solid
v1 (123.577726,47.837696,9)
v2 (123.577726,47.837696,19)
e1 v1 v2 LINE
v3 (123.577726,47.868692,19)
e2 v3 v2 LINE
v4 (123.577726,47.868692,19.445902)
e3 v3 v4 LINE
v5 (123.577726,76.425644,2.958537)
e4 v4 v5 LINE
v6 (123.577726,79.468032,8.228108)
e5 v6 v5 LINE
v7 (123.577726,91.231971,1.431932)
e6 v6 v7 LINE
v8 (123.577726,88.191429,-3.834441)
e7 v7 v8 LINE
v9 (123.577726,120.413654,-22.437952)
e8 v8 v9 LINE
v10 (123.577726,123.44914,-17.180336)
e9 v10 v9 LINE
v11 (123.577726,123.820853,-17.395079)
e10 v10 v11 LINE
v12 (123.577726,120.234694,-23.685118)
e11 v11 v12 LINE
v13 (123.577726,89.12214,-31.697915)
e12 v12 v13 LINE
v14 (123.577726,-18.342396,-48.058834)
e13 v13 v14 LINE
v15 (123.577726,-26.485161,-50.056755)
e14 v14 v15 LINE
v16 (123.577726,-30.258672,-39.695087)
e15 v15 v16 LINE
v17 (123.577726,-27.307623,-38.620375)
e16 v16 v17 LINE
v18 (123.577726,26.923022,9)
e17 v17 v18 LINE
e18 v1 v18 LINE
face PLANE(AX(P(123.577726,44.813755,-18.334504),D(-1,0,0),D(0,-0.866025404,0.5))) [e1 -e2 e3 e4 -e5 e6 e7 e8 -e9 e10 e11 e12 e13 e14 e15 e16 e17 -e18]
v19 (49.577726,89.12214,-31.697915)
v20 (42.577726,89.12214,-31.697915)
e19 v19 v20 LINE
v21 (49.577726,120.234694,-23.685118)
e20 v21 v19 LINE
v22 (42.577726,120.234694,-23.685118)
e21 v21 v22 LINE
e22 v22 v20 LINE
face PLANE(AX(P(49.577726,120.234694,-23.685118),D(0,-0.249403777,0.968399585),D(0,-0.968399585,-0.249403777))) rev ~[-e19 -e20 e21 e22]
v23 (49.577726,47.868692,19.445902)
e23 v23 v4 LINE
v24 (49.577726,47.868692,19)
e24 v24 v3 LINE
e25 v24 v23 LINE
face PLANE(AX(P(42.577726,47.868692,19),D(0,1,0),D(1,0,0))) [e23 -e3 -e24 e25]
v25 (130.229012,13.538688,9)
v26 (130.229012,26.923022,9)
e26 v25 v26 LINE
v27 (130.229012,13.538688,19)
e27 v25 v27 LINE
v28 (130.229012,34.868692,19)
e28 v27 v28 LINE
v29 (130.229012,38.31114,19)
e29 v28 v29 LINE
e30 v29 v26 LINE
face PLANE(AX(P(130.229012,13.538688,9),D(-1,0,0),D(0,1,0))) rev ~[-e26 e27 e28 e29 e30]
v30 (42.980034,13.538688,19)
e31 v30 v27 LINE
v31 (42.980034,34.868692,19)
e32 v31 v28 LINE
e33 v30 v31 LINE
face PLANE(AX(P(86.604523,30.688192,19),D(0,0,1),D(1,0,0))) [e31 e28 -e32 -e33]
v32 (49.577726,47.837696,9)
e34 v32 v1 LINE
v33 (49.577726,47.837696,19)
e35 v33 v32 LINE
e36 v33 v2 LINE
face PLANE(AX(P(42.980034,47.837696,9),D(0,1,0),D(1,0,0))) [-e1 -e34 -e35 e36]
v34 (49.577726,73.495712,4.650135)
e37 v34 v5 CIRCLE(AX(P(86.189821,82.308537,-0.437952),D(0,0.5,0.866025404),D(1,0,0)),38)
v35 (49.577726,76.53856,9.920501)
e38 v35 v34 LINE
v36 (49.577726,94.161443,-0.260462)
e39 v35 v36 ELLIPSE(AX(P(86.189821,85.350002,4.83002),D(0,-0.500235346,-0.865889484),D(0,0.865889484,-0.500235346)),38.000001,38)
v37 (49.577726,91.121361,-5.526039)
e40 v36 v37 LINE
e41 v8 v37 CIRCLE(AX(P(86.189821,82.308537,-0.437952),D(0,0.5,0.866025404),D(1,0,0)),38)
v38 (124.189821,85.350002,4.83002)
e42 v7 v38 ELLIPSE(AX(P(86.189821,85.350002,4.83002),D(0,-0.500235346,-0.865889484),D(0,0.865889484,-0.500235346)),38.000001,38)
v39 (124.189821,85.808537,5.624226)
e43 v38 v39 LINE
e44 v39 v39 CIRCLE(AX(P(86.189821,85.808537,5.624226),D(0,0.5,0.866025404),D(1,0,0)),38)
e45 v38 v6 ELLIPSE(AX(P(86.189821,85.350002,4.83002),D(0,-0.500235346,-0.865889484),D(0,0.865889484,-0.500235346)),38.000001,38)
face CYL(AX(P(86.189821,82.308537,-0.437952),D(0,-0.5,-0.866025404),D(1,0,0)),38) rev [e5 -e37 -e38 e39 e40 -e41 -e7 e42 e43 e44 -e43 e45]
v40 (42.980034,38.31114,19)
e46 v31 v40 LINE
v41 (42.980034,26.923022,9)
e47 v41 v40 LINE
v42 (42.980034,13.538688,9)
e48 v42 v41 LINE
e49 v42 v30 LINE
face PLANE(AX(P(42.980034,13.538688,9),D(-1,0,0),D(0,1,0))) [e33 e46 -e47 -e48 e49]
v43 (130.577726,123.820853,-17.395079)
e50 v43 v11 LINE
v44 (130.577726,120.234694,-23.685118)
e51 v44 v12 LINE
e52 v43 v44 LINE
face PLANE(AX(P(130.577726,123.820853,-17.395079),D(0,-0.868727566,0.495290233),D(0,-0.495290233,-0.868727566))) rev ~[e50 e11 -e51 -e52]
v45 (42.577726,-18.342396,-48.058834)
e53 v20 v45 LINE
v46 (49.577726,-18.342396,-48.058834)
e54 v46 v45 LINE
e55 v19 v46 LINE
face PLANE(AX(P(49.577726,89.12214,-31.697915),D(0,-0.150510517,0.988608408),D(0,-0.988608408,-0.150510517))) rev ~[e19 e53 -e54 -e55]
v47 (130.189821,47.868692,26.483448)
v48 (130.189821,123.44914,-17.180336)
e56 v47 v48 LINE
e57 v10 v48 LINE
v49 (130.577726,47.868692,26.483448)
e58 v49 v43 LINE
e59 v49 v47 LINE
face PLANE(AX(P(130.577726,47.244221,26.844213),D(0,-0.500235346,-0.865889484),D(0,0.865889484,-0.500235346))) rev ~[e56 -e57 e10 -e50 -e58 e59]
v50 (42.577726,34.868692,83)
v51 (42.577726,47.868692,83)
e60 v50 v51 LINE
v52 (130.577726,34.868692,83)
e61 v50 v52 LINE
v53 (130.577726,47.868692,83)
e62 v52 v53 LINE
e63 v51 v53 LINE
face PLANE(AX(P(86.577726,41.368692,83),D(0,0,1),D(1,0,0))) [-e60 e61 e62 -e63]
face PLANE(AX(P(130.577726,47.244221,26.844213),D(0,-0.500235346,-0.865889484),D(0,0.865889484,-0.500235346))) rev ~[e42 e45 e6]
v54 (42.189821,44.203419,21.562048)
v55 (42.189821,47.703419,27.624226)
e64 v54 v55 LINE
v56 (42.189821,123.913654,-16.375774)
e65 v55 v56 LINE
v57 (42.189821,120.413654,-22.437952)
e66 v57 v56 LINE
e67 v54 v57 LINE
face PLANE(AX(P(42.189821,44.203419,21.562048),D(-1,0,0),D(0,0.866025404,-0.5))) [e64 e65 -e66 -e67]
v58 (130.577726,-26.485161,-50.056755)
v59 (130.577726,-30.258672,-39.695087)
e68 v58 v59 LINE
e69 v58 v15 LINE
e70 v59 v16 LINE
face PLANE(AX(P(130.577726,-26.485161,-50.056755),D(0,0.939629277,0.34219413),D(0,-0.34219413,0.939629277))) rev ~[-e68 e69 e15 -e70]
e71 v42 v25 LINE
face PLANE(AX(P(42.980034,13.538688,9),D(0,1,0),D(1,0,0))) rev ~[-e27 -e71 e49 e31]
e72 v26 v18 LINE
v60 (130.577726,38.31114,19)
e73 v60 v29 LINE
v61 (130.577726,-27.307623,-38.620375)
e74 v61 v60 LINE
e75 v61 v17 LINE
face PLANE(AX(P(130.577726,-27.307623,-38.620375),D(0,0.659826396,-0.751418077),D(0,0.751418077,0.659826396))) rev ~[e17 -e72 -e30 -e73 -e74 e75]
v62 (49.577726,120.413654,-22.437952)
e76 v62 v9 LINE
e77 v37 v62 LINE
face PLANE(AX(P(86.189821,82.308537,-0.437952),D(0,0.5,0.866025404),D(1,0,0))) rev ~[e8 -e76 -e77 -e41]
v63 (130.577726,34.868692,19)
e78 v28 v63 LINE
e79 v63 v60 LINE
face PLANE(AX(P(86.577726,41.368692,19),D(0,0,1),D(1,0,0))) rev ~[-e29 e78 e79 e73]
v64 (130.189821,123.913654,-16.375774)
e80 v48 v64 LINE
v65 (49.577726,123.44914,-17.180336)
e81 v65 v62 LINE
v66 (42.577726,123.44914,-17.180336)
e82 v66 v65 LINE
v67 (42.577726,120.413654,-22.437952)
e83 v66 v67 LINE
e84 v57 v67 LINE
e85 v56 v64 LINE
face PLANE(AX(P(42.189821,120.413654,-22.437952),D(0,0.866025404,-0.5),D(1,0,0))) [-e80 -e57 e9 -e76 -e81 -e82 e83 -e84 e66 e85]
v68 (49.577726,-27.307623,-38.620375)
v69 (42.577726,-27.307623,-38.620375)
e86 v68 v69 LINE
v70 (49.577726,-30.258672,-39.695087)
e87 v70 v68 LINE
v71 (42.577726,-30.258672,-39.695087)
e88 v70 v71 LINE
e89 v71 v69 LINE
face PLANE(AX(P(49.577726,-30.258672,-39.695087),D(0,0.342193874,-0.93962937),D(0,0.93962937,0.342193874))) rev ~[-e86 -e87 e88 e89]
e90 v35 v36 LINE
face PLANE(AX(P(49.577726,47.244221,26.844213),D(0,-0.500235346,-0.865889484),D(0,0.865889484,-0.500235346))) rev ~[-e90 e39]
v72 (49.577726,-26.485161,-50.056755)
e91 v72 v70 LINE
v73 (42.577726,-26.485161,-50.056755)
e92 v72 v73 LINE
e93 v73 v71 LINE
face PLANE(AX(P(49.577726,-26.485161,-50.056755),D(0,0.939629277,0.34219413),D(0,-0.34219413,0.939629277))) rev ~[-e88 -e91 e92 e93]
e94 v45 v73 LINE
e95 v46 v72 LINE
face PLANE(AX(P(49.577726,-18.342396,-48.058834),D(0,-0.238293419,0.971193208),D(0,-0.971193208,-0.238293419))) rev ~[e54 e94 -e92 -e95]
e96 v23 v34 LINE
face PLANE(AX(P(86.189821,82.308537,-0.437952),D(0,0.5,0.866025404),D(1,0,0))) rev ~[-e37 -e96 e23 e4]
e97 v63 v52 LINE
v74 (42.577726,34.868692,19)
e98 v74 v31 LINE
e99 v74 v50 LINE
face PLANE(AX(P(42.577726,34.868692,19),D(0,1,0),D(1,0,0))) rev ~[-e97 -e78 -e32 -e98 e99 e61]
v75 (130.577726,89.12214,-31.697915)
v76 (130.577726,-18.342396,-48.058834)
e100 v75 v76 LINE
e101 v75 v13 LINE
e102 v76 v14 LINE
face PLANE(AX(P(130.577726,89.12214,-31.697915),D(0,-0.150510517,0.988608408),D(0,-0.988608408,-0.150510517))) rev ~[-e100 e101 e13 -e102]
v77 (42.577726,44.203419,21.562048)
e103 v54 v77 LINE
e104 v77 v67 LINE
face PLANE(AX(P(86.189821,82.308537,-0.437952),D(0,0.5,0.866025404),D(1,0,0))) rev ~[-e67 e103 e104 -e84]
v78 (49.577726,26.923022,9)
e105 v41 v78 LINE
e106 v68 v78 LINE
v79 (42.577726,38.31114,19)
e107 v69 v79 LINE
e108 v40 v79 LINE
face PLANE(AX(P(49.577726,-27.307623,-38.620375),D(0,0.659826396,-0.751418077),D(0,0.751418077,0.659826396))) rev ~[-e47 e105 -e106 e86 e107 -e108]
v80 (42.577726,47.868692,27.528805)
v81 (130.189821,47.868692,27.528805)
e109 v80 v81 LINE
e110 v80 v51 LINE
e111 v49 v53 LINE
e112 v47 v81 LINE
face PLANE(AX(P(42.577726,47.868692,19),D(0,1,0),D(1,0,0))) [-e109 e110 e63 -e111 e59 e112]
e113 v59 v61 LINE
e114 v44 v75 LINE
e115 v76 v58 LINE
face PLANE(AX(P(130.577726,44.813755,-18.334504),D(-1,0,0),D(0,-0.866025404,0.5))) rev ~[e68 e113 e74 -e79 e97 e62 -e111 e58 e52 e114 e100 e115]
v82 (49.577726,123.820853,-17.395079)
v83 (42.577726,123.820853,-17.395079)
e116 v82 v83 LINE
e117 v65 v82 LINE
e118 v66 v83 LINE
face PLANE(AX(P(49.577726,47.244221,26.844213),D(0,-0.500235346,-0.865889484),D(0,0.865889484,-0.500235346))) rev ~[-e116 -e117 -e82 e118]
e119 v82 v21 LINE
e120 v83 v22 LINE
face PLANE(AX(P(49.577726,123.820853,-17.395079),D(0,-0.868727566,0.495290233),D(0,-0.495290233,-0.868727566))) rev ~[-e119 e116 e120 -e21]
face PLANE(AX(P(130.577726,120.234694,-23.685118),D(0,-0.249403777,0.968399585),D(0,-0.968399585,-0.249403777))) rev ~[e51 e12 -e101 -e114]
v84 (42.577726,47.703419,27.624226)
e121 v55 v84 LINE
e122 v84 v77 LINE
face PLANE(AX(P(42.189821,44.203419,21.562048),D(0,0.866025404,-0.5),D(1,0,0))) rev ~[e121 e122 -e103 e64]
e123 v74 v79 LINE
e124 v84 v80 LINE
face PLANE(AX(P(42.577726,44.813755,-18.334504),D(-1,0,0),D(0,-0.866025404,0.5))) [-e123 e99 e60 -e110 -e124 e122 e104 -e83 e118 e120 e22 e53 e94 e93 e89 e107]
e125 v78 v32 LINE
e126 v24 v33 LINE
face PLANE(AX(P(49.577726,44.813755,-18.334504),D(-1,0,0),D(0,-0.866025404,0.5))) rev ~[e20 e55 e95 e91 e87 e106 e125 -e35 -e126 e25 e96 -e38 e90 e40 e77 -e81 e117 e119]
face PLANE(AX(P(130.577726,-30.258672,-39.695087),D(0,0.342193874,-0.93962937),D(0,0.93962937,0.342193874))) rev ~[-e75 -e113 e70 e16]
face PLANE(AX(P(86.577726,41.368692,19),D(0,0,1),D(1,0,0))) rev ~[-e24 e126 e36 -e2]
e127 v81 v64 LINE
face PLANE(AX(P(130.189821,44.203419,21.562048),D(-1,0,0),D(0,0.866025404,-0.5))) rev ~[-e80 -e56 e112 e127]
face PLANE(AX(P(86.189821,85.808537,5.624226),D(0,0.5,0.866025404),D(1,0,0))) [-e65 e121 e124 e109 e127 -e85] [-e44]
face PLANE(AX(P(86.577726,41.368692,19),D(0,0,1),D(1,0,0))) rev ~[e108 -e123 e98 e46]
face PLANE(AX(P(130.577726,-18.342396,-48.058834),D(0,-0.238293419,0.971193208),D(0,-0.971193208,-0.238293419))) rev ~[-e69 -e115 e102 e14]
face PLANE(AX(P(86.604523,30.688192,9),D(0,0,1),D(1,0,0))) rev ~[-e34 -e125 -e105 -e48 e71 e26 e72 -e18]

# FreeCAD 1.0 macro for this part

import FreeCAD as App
import Part
import Sketcher

doc = App.newDocument("Part")
body = doc.addObject("PartDesign::Body", "Body")

# Sketch on XY plane
sketch1 = body.newObject("Sketcher::SketchObject", "Sketch")
sketch1.AttachmentSupport = (doc.getObject("XY_Plane"), [""])
sketch1.MapMode = "FlatFace"
sketch1.addGeometry([
    Part.LineSegment(App.Vector(-123.3, 6.1, 0), App.Vector(-123.3, -1.2, 0)),  # 0
    Part.LineSegment(App.Vector(-123.3, -1.2, 0), App.Vector(-100.4, -23.7, 0)),  # 1
    Part.LineSegment(App.Vector(-100.4, -23.7, 0), App.Vector(-15.5, -91.6, 0)),  # 2
    Part.LineSegment(App.Vector(-15.5, -91.6, 0), App.Vector(-9.5, -97.4, 0)),  # 3
    Part.LineSegment(App.Vector(-9.5, -97.4, 0), App.Vector(-1, -90.3, 0)),  # 4
    Part.LineSegment(App.Vector(-1, -90.3, 0), App.Vector(-3, -87.9, 0)),  # 5
    Part.LineSegment(App.Vector(-3, -87.9, 0), App.Vector(-34.9, 6.1, 0)),  # 6
    Part.LineSegment(App.Vector(-34.9, 6.1, 0), App.Vector(-123.3, 6.1, 0)),  # 7
], False)
sketch1.addConstraint([
    Sketcher.Constraint("Coincident", 0, 2, 1, 1),
    Sketcher.Constraint("Coincident", 1, 2, 2, 1),
    Sketcher.Constraint("Coincident", 2, 2, 3, 1),
    Sketcher.Constraint("Coincident", 3, 2, 4, 1),
    Sketcher.Constraint("Coincident", 4, 2, 5, 1),
    Sketcher.Constraint("Coincident", 5, 2, 6, 1),
    Sketcher.Constraint("Coincident", 6, 2, 7, 1),
    Sketcher.Constraint("Coincident", 7, 2, 0, 1),
    Sketcher.Constraint("Perpendicular", 4, 5),
    Sketcher.Constraint("Distance", 4, 11.0274),
    Sketcher.Constraint("DistanceX", 3, 2, -1, 1, 9.4672),
    Sketcher.Constraint("DistanceX", 1, 2, 5, 2, 97.369902),
    Sketcher.Constraint("Distance", 0, 7.24052),
    Sketcher.Constraint("Distance", 3, 8.38429),
    Sketcher.Constraint("DistanceY", 0, 2, -1, 1, 1.169558),
    Sketcher.Constraint("DistanceX", 1, 2, -1, 1, 100.406639),
    Sketcher.Constraint("DistanceY", 1, 2, -1, 1, 23.66512),
    Sketcher.Constraint("DistanceX", 2, 2, -1, 1, 15.520081),
    Sketcher.Constraint("DistanceY", 2, 2, -1, 1, 91.56636),
    Sketcher.Constraint("DistanceX", 4, 2, -1, 1, 1.018409),
    Sketcher.Constraint("DistanceY", -1, 1, 6, 2, 6.09489),
    Sketcher.Constraint("DistanceX", 7, 2, -1, 1, 123.305188),
    Sketcher.Constraint("DistanceX", 0, 2, 2, 2, 107.824422),
    Sketcher.Constraint("DistanceX", 0, 2, 6, 2, 88.476269),
])
pad1 = body.newObject("PartDesign::Pad", "Pad")
pad1.Profile = sketch1
pad1.Length = 7
body2 = doc.addObject("PartDesign::Body", "Body001")
doc.recompute()

body.Placement = App.Placement(App.Vector(0, 0, 0), App.Rotation(App.Vector(1, 0, 0), 90))
boolean = body2.newObject("PartDesign::Boolean", "Boolean")
boolean.Type = "Fuse"
boolean.addObjects([body])
body3 = doc.addObject("PartDesign::Body", "Body002")
doc.recompute()

body2.Placement = App.Placement(App.Vector(0, 0, 0), App.Rotation(App.Vector(0, 1, 0), 330))
boolean2 = body3.newObject("PartDesign::Boolean", "Boolean001")
boolean2.Type = "Fuse"
boolean2.addObjects([body2])
body4 = doc.addObject("PartDesign::Body", "Body003")
doc.recompute()

body3.Placement = App.Placement(App.Vector(42.577726, 14, 39), App.Rotation(App.Vector(0, 0, 1), 270))
boolean3 = body4.newObject("PartDesign::Boolean", "Boolean002")
boolean3.Type = "Fuse"
boolean3.addObjects([body3])
body5 = doc.addObject("PartDesign::Body", "Body004")
doc.recompute()

body4.Placement = App.Placement(App.Vector(7, 0, 0), App.Rotation(App.Vector(0, 0, 1), 0))
boolean4 = body5.newObject("PartDesign::Boolean", "Boolean003")
boolean4.Type = "Fuse"
boolean4.addObjects([body4])
body6 = doc.addObject("PartDesign::Body", "Body005")

# Sketch on XY plane
sketch2 = body6.newObject("Sketcher::SketchObject", "Sketch001")
sketch2.AttachmentSupport = (doc.getObject("XY_Plane005"), [""])
sketch2.MapMode = "FlatFace"
sketch2.addGeometry([
    Part.LineSegment(App.Vector(40, 48, 0), App.Vector(40, 14, 0)),
    Part.LineSegment(App.Vector(40, 14, 0), App.Vector(127, 14, 0)),
    Part.LineSegment(App.Vector(127, 14, 0), App.Vector(127, 48, 0)),
    Part.LineSegment(App.Vector(127, 48, 0), App.Vector(40, 48, 0)),
], False)
sketch2.addConstraint([
    Sketcher.Constraint("Coincident", 0, 2, 1, 1),
    Sketcher.Constraint("Coincident", 1, 2, 2, 1),
    Sketcher.Constraint("Coincident", 2, 2, 3, 1),
    Sketcher.Constraint("Coincident", 3, 2, 0, 1),
    Sketcher.Constraint("Vertical", 0),
    Sketcher.Constraint("Horizontal", 1),
    Sketcher.Constraint("Vertical", 2),
    Sketcher.Constraint("Horizontal", 3),
    Sketcher.Constraint("DistanceX", 1, 1, 1, 2, 87.248978),
    Sketcher.Constraint("DistanceY", 0, 2, 0, 1, 34.299007),
    Sketcher.Constraint("DistanceY", -1, 1, 0, 2, 13.538688),
    Sketcher.Constraint("DistanceX", -1, 1, 1, 2, 127.229012),
])
pad2 = body6.newObject("PartDesign::Pad", "Pad001")
pad2.Profile = sketch2
pad2.Length = 10
body7 = doc.addObject("PartDesign::Body", "Body006")
doc.recompute()

body6.Placement = App.Placement(App.Vector(3, 0, 9), App.Rotation(App.Vector(0, 0, 1), 0))
boolean5 = body7.newObject("PartDesign::Boolean", "Boolean004")
boolean5.Type = "Fuse"
boolean5.addObjects([body6])
body8 = doc.addObject("PartDesign::Body", "Body007")

# Sketch on XY plane
sketch3 = body8.newObject("Sketcher::SketchObject", "Sketch002")
sketch3.AttachmentSupport = (doc.getObject("XY_Plane007"), [""])
sketch3.MapMode = "FlatFace"
sketch3.addGeometry([
    Part.LineSegment(App.Vector(-123.3, 6.1, 0), App.Vector(-123.3, -1.2, 0)),  # 0
    Part.LineSegment(App.Vector(-123.3, -1.2, 0), App.Vector(-100.4, -23.7, 0)),  # 1
    Part.LineSegment(App.Vector(-100.4, -23.7, 0), App.Vector(-15.5, -91.6, 0)),  # 2
    Part.LineSegment(App.Vector(-15.5, -91.6, 0), App.Vector(-9.5, -97.4, 0)),  # 3
    Part.LineSegment(App.Vector(-9.5, -97.4, 0), App.Vector(-1, -90.3, 0)),  # 4
    Part.LineSegment(App.Vector(-1, -90.3, 0), App.Vector(-3, -87.9, 0)),  # 5
    Part.LineSegment(App.Vector(-3, -87.9, 0), App.Vector(-34.9, 6.1, 0)),  # 6
    Part.LineSegment(App.Vector(-34.9, 6.1, 0), App.Vector(-123.3, 6.1, 0)),  # 7
], False)
sketch3.addConstraint([
    Sketcher.Constraint("Coincident", 0, 2, 1, 1),
    Sketcher.Constraint("Coincident", 1, 2, 2, 1),
    Sketcher.Constraint("Coincident", 2, 2, 3, 1),
    Sketcher.Constraint("Coincident", 3, 2, 4, 1),
    Sketcher.Constraint("Coincident", 4, 2, 5, 1),
    Sketcher.Constraint("Coincident", 5, 2, 6, 1),
    Sketcher.Constraint("Coincident", 6, 2, 7, 1),
    Sketcher.Constraint("Coincident", 7, 2, 0, 1),
    Sketcher.Constraint("Perpendicular", 4, 5),
    Sketcher.Constraint("Distance", 4, 11.0274),
    Sketcher.Constraint("DistanceX", 3, 2, -1, 1, 9.4672),
    Sketcher.Constraint("DistanceX", 1, 2, 5, 2, 97.369902),
    Sketcher.Constraint("Distance", 0, 7.24052),
    Sketcher.Constraint("Distance", 3, 8.38429),
    Sketcher.Constraint("DistanceY", 0, 2, -1, 1, 1.169558),
    Sketcher.Constraint("DistanceX", 1, 2, -1, 1, 100.406639),
    Sketcher.Constraint("DistanceY", 1, 2, -1, 1, 23.66512),
    Sketcher.Constraint("DistanceX", 2, 2, -1, 1, 15.520081),
    Sketcher.Constraint("DistanceY", 2, 2, -1, 1, 91.56636),
    Sketcher.Constraint("DistanceX", 4, 2, -1, 1, 1.018409),
    Sketcher.Constraint("DistanceY", -1, 1, 6, 2, 6.09489),
    Sketcher.Constraint("DistanceX", 7, 2, -1, 1, 123.305188),
    Sketcher.Constraint("DistanceX", 0, 2, 2, 2, 107.824422),
    Sketcher.Constraint("DistanceX", 0, 2, 6, 2, 88.476269),
])
pad3 = body8.newObject("PartDesign::Pad", "Pad002")
pad3.Profile = sketch3
pad3.Length = 7
body9 = doc.addObject("PartDesign::Body", "Body008")
doc.recompute()

body8.Placement = App.Placement(App.Vector(0, 0, 0), App.Rotation(App.Vector(1, 0, 0), 90))
boolean6 = body9.newObject("PartDesign::Boolean", "Boolean005")
boolean6.Type = "Fuse"
boolean6.addObjects([body8])
body10 = doc.addObject("PartDesign::Body", "Body009")
doc.recompute()

body9.Placement = App.Placement(App.Vector(0, 0, 0), App.Rotation(App.Vector(0, 1, 0), 330))
boolean7 = body10.newObject("PartDesign::Boolean", "Boolean006")
boolean7.Type = "Fuse"
boolean7.addObjects([body9])
body11 = doc.addObject("PartDesign::Body", "Body010")
doc.recompute()

body10.Placement = App.Placement(App.Vector(42.577726, 14, 39), App.Rotation(App.Vector(0, 0, 1), 270))
boolean8 = body11.newObject("PartDesign::Boolean", "Boolean007")
boolean8.Type = "Fuse"
boolean8.addObjects([body10])
body12 = doc.addObject("PartDesign::Body", "Body011")
doc.recompute()

body11.Placement = App.Placement(App.Vector(88, 0, 0), App.Rotation(App.Vector(0, 0, 1), 0))
boolean9 = body12.newObject("PartDesign::Boolean", "Boolean008")
boolean9.Type = "Fuse"
boolean9.addObjects([body11])
body13 = doc.addObject("PartDesign::Body", "Body012")

# Sketch on XY plane
sketch4 = body13.newObject("Sketcher::SketchObject", "Sketch003")
sketch4.AttachmentSupport = (doc.getObject("XY_Plane012"), [""])
sketch4.MapMode = "FlatFace"
sketch4.addGeometry([
    Part.LineSegment(App.Vector(39, 123, 0), App.Vector(39, 35, 0)),  # 0
    Part.LineSegment(App.Vector(39, 35, 0), App.Vector(127, 35, 0)),  # 1
    Part.LineSegment(App.Vector(127, 35, 0), App.Vector(127, 123, 0)),  # 2
    Part.LineSegment(App.Vector(127, 123, 0), App.Vector(39, 123, 0)),  # 3
    Part.Circle(App.Vector(83, 79, 0), App.Vector(0, 0, 1), 38),  # 4
], False)
sketch4.addConstraint([
    Sketcher.Constraint("Coincident", 0, 2, 1, 1),
    Sketcher.Constraint("Coincident", 1, 2, 2, 1),
    Sketcher.Constraint("Coincident", 2, 2, 3, 1),
    Sketcher.Constraint("Coincident", 3, 2, 0, 1),
    Sketcher.Constraint("Vertical", 0),
    Sketcher.Constraint("Horizontal", 1),
    Sketcher.Constraint("Vertical", 2),
    Sketcher.Constraint("Horizontal", 3),
    Sketcher.Constraint("Equal", 3, 0),
    Sketcher.Constraint("Diameter", 4, 76.0),
    Sketcher.Constraint("DistanceX", 1, 1, 1, 2, 88.0),
    Sketcher.Constraint("DistanceX", 0, 2, 4, 3, 44.0),
    Sketcher.Constraint("DistanceY", 0, 2, 4, 3, 44.0),
    Sketcher.Constraint("DistanceX", -1, 1, 4, 3, 83.189821),
    Sketcher.Constraint("DistanceY", -1, 1, 4, 3, 78.875904),
])
pad4 = body13.newObject("PartDesign::Pad", "Pad003")
pad4.Profile = sketch4
pad4.Length = 7
body14 = doc.addObject("PartDesign::Body", "Body013")
doc.recompute()

body13.Placement = App.Placement(App.Vector(3, 14, 39), App.Rotation(App.Vector(-1, 0, 0), 30))
boolean10 = body14.newObject("PartDesign::Boolean", "Boolean009")
boolean10.Type = "Fuse"
boolean10.addObjects([body13])
body15 = doc.addObject("PartDesign::Body", "Body014")

# Sketch on XY plane
sketch5 = body15.newObject("Sketcher::SketchObject", "Sketch004")
sketch5.AttachmentSupport = (doc.getObject("XY_Plane014"), [""])
sketch5.MapMode = "FlatFace"
sketch5.addGeometry([
    Part.LineSegment(App.Vector(40, 48, 0), App.Vector(40, 35, 0)),
    Part.LineSegment(App.Vector(40, 35, 0), App.Vector(128, 35, 0)),
    Part.LineSegment(App.Vector(128, 35, 0), App.Vector(128, 48, 0)),
    Part.LineSegment(App.Vector(128, 48, 0), App.Vector(40, 48, 0)),
], False)
sketch5.addConstraint([
    Sketcher.Constraint("Coincident", 0, 2, 1, 1),
    Sketcher.Constraint("Coincident", 1, 2, 2, 1),
    Sketcher.Constraint("Coincident", 2, 2, 3, 1),
    Sketcher.Constraint("Coincident", 3, 2, 0, 1),
    Sketcher.Constraint("Vertical", 0),
    Sketcher.Constraint("Horizontal", 1),
    Sketcher.Constraint("Vertical", 2),
    Sketcher.Constraint("Horizontal", 3),
    Sketcher.Constraint("DistanceX", 1, 1, 1, 2, 88.0),
    Sketcher.Constraint("DistanceY", 0, 2, 0, 1, 13.0),
    Sketcher.Constraint("DistanceX", -1, 1, 0, 2, 39.577726),
    Sketcher.Constraint("DistanceY", -1, 1, 0, 2, 34.868692),
])
pad5 = body15.newObject("PartDesign::Pad", "Pad004")
pad5.Profile = sketch5
pad5.Length = 64
body16 = doc.addObject("PartDesign::Body", "Body015")
doc.recompute()

body15.Placement = App.Placement(App.Vector(3, 0, 19), App.Rotation(App.Vector(0, 0, 1), 0))
boolean11 = body16.newObject("PartDesign::Boolean", "Boolean010")
boolean11.Type = "Fuse"
boolean11.addObjects([body15])
doc.recompute()

boolean12 = body16.newObject("PartDesign::Boolean", "Boolean011")
boolean12.Type = "Fuse"
boolean12.addObjects([body5])
doc.recompute()

boolean13 = body16.newObject("PartDesign::Boolean", "Boolean012")
boolean13.Type = "Fuse"
boolean13.addObjects([body7])
doc.recompute()

boolean14 = body16.newObject("PartDesign::Boolean", "Boolean013")
boolean14.Type = "Fuse"
boolean14.addObjects([body12])
doc.recompute()

boolean15 = body16.newObject("PartDesign::Boolean", "Boolean014")
boolean15.Type = "Fuse"
boolean15.addObjects([body14])

doc.recompute()
